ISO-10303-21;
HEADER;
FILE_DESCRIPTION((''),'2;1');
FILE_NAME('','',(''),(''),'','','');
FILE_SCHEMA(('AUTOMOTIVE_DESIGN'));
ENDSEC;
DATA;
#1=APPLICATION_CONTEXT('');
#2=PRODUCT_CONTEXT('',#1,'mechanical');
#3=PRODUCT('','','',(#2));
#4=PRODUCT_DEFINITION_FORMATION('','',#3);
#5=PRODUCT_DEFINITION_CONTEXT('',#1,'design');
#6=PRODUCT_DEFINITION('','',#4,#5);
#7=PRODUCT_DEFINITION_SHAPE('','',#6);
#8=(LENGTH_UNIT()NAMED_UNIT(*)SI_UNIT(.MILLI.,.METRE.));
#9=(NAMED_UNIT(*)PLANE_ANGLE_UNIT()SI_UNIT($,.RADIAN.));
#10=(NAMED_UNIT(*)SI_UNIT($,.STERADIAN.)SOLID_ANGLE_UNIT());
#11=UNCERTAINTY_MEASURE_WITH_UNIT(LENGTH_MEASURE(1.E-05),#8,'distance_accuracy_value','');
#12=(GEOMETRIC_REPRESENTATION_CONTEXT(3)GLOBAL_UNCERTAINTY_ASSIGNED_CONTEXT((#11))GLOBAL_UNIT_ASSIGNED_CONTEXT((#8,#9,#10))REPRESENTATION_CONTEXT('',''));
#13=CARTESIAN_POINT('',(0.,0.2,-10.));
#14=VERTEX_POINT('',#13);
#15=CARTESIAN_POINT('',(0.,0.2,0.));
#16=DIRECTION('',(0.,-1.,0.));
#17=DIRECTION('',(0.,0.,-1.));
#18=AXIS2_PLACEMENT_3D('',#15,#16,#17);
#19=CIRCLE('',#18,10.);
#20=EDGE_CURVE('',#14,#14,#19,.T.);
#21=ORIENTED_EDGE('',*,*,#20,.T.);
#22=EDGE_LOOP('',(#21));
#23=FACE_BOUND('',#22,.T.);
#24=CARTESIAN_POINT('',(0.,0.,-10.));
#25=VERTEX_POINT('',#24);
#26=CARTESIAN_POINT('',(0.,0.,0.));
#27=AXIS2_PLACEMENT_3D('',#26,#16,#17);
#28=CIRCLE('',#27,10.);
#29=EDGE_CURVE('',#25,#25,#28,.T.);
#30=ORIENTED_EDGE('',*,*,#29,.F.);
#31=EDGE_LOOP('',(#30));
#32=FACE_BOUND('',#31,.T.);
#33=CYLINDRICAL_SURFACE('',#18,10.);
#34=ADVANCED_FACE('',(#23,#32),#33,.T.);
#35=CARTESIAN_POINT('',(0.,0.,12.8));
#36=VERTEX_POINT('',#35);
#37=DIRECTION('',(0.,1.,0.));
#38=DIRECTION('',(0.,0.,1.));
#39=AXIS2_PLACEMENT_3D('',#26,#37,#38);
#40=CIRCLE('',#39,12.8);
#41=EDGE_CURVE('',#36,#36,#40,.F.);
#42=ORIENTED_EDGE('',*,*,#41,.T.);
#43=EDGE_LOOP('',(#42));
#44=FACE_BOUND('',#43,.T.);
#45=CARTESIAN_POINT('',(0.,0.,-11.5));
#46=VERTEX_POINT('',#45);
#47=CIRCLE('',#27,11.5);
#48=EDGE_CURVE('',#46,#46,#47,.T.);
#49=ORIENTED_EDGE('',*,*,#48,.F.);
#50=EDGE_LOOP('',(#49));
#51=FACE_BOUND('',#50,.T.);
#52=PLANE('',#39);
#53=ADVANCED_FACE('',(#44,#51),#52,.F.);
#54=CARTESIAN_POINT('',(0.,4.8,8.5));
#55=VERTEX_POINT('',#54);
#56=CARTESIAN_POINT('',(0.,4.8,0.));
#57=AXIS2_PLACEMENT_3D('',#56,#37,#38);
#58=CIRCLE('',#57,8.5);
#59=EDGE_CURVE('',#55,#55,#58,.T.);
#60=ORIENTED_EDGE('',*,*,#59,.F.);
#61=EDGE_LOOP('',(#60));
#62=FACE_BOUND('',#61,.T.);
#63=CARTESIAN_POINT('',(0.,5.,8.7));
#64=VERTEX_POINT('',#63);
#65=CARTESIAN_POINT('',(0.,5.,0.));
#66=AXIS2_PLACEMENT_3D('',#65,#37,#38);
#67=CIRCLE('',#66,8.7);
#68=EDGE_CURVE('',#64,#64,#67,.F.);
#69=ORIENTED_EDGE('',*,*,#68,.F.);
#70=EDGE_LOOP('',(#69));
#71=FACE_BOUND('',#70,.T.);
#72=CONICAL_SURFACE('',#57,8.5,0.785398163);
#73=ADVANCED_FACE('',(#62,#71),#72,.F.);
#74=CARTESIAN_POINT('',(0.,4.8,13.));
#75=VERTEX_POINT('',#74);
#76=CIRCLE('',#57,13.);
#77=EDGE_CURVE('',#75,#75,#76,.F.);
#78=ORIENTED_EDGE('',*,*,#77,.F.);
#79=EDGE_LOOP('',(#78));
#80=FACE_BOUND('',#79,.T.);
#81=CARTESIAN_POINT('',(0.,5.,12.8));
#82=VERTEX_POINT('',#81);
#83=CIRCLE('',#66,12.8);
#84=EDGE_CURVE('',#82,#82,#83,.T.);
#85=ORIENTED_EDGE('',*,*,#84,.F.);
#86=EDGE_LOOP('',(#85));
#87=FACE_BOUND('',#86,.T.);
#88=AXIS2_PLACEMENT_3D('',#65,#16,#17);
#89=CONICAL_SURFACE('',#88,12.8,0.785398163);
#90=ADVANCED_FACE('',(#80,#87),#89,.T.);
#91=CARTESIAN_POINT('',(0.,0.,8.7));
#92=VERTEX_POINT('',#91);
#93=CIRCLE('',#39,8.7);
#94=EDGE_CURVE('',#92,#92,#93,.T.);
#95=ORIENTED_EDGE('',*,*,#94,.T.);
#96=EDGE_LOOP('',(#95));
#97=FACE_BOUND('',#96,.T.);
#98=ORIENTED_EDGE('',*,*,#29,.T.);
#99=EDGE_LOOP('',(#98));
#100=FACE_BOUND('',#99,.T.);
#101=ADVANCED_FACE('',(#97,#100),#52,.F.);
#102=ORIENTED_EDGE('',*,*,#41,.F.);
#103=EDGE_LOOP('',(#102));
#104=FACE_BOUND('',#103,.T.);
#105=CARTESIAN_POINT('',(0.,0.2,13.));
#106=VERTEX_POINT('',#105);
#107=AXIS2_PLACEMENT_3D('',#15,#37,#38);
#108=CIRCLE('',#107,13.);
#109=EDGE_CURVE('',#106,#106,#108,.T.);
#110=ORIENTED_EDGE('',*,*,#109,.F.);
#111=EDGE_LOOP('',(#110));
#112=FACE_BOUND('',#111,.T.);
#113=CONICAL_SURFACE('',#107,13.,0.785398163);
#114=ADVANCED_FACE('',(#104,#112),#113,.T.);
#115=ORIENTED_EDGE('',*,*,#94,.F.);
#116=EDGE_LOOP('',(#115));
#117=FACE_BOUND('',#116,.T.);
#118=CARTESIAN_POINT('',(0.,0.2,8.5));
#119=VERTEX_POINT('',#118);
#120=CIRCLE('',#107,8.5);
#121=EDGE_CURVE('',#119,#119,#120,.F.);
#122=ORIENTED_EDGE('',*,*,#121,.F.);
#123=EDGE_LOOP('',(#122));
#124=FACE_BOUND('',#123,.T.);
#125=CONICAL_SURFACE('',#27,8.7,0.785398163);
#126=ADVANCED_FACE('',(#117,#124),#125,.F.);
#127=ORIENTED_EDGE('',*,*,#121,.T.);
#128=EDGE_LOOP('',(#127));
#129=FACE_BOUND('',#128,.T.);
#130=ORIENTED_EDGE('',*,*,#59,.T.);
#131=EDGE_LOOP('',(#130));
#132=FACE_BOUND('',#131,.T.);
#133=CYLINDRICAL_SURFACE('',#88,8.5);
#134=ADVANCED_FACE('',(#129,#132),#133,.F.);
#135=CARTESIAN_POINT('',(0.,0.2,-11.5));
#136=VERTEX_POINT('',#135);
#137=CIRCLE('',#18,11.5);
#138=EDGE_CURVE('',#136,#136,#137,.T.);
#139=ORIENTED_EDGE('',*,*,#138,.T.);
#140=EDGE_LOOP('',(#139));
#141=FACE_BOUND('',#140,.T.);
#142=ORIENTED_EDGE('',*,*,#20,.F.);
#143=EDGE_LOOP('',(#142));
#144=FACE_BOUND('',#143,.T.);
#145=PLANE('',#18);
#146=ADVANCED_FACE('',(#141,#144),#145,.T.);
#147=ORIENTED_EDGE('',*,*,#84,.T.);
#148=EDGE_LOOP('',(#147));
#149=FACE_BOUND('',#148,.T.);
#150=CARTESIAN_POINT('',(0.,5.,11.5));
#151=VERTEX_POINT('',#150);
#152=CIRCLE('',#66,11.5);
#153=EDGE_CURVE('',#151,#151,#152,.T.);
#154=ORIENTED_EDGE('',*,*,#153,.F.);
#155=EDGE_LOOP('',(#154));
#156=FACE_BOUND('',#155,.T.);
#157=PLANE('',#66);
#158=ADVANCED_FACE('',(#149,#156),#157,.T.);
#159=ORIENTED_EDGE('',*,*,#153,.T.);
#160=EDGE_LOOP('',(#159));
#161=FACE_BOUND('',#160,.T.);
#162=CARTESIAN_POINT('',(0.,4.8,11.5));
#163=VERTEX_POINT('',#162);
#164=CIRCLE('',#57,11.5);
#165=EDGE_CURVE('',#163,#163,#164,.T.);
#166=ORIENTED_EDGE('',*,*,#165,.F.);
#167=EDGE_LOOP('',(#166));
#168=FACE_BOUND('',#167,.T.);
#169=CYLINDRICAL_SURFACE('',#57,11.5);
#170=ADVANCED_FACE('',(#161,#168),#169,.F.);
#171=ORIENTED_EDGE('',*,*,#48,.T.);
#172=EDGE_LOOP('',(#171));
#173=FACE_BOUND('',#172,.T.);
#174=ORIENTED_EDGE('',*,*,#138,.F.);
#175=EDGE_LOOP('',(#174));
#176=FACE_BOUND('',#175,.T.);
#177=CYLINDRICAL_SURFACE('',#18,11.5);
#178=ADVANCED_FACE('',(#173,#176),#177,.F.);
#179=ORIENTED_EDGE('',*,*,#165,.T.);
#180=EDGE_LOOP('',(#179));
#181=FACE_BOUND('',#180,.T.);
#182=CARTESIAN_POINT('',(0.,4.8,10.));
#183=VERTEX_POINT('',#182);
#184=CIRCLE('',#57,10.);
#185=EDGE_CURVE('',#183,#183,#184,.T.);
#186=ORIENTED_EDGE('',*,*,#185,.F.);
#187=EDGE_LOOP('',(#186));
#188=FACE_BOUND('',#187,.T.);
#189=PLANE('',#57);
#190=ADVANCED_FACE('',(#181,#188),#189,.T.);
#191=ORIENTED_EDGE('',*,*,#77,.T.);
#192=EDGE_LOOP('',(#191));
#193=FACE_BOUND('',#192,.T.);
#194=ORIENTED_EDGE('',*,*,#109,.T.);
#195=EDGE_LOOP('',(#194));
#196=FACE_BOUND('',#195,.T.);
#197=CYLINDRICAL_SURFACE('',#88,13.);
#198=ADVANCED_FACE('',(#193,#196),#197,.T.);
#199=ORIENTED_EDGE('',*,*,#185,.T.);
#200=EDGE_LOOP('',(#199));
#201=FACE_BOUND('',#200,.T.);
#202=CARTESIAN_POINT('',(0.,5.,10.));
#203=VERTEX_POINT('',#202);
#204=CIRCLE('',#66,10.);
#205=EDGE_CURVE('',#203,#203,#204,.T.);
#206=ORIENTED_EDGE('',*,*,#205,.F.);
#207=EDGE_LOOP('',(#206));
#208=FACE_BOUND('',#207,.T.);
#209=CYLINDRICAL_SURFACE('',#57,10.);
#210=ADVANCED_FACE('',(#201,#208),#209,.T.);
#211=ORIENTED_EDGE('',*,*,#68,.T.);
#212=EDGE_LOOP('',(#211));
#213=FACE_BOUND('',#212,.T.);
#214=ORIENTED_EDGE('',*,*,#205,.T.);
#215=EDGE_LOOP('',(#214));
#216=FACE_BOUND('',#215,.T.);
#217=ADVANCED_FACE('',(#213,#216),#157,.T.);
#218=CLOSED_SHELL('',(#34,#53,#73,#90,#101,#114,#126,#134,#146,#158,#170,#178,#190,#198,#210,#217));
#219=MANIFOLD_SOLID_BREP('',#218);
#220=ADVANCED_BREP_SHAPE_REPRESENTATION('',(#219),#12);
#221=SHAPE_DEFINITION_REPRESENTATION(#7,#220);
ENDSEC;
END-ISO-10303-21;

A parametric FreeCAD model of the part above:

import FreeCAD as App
import Part
import Sketcher


def edges_at(feature, points):
    """Names of the edges that pass closest to the given points."""
    edges = feature.Shape.Edges
    near = lambda p: min(range(len(edges)), key=lambda i: edges[i].distToShape(Part.Vertex(*p))[0])
    return sorted({f"Edge{near(p) + 1}" for p in points})

doc = App.newDocument("Part")
body = doc.addObject("PartDesign::Body", "Body")

# Sketch on XZ plane
sketch1 = body.newObject("Sketcher::SketchObject", "Sketch")
sketch1.AttachmentSupport = (doc.getObject("XZ_Plane"), [""])
sketch1.MapMode = "FlatFace"
sketch1.addGeometry(Part.Circle(App.Vector(0, 0, 0), App.Vector(0, 0, 1), 13), False)
sketch1.addGeometry(Part.Circle(App.Vector(0, 0, 0), App.Vector(0, 0, 1), 8), False)
sketch1.addConstraint(Sketcher.Constraint("Coincident", 0, 3, -1, 1))
sketch1.addConstraint(Sketcher.Constraint("Coincident", 1, 3, -1, 1))
sketch1.addConstraint(Sketcher.Constraint("Diameter", 0, 26.0))
sketch1.addConstraint(Sketcher.Constraint("Diameter", 1, 17.0))
pad1 = body.newObject("PartDesign::Pad", "Pad")
pad1.Profile = sketch1
pad1.Length = 5
pad1.Reversed = True

# Sketch on XZ plane
sketch2 = body.newObject("Sketcher::SketchObject", "Sketch001")
sketch2.AttachmentSupport = (doc.getObject("XZ_Plane"), [""])
sketch2.MapMode = "FlatFace"
sketch2.AttachmentOffset = App.Placement(App.Vector(0, 0, -5), App.Rotation())
sketch2.addGeometry(Part.Circle(App.Vector(0, 0, 0), App.Vector(0, 0, 1), 12), False)
sketch2.addGeometry(Part.Circle(App.Vector(0, 0, 0), App.Vector(0, 0, 1), 10), False)
sketch2.addConstraint(Sketcher.Constraint("Coincident", 0, 3, -1, 1))
sketch2.addConstraint(Sketcher.Constraint("Coincident", 1, 3, -1, 1))
sketch2.addConstraint(Sketcher.Constraint("Diameter", 0, 23.0))
sketch2.addConstraint(Sketcher.Constraint("Diameter", 1, 20.0))
pocket1 = body.newObject("PartDesign::Pocket", "Pocket")
pocket1.Profile = sketch2
pocket1.Length = 0.2
pocket1.Reversed = True

# Sketch on XZ plane
sketch3 = body.newObject("Sketcher::SketchObject", "Sketch002")
sketch3.AttachmentSupport = (doc.getObject("XZ_Plane"), [""])
sketch3.MapMode = "FlatFace"
sketch3.AttachmentOffset = App.Placement(App.Vector(0, 0, -0.2), App.Rotation())
sketch3.addGeometry(Part.Circle(App.Vector(0, 0, 0), App.Vector(0, 0, 1), 12), False)
sketch3.addGeometry(Part.Circle(App.Vector(0, 0, 0), App.Vector(0, 0, 1), 10), False)
sketch3.addConstraint(Sketcher.Constraint("Coincident", 0, 3, -1, 1))
sketch3.addConstraint(Sketcher.Constraint("Coincident", 1, 3, -1, 1))
sketch3.addConstraint(Sketcher.Constraint("Diameter", 0, 23.0))
sketch3.addConstraint(Sketcher.Constraint("Diameter", 1, 20.0))
pocket2 = body.newObject("PartDesign::Pocket", "Pocket001")
pocket2.Profile = sketch3
pocket2.Length = 0.2
pocket2.Reversed = True
doc.recompute()

chamfer = body.newObject("PartDesign::Chamfer", "Chamfer")
chamfer.Base = (pocket2, edges_at(pocket2, [
    (0, 0, -13),
    (0, 5, -13),
    (0, 0, -8.5),
    (0, 5, -8.5),
]))
chamfer.Size = 0.2

doc.recompute()
